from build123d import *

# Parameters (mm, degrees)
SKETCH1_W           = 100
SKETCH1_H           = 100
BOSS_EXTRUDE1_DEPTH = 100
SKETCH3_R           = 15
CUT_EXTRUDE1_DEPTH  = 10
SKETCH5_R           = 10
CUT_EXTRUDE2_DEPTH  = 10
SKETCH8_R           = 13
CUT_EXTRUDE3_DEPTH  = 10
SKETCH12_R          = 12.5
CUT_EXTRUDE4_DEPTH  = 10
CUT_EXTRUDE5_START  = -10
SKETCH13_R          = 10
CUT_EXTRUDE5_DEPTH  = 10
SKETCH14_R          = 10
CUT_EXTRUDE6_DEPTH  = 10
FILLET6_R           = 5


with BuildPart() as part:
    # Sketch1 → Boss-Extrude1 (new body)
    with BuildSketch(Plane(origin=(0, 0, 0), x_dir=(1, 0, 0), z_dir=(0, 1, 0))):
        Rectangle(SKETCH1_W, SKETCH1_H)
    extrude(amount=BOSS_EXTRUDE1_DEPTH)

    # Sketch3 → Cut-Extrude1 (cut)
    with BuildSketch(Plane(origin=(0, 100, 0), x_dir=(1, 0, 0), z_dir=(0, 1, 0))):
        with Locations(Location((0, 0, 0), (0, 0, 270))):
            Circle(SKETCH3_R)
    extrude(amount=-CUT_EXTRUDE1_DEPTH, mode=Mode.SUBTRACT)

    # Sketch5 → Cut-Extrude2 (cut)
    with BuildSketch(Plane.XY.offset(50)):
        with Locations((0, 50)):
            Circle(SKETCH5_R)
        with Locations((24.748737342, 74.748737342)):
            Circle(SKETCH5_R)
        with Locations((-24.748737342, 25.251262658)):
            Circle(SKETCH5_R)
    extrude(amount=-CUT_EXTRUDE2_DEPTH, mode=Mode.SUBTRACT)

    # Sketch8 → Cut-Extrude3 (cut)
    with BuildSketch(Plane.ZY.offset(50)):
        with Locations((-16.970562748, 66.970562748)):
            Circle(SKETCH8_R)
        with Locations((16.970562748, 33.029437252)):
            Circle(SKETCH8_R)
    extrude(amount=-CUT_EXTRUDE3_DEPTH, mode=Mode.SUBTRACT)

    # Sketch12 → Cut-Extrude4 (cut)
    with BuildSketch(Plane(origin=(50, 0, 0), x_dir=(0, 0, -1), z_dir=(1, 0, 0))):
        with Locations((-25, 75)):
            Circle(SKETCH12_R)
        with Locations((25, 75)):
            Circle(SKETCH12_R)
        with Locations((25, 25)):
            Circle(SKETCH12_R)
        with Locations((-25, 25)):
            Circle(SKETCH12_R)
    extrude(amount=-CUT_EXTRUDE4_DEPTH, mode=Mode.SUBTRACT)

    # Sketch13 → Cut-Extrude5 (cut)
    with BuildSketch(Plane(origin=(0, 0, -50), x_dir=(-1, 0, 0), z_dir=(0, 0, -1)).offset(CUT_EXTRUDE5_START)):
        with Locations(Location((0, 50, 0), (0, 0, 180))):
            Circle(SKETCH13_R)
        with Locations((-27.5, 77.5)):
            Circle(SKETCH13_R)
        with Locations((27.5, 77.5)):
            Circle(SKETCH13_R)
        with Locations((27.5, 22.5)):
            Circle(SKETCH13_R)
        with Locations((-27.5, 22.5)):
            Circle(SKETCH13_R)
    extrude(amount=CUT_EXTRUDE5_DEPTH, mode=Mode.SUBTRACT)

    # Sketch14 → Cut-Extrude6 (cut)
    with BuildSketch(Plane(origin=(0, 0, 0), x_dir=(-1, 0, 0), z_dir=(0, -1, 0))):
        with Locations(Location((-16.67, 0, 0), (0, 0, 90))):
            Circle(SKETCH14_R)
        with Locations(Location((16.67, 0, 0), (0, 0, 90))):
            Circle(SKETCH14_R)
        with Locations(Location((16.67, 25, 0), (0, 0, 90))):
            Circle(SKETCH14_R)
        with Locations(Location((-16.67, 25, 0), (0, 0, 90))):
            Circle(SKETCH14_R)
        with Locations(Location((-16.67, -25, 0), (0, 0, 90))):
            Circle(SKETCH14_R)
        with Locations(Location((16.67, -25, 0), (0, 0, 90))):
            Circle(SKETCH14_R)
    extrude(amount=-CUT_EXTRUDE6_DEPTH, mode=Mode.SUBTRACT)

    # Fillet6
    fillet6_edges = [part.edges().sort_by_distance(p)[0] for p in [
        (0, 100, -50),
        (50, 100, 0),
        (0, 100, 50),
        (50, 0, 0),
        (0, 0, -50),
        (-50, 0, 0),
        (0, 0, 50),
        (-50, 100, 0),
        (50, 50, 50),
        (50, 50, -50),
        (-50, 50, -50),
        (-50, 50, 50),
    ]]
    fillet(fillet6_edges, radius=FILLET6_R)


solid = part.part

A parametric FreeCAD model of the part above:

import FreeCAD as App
import Part
import Sketcher

V = App.Vector


def edges_at(feature, points):
    """Names of the edges that pass closest to the given points."""
    edges = feature.Shape.Edges
    near = lambda p: min(range(len(edges)), key=lambda i: edges[i].distToShape(Part.Vertex(*p))[0])
    return sorted({f"Edge{near(p) + 1}" for p in points})


def add_polygon(sketch, points):
    """Adds a closed chain of lines whose ends are joined by coincident constraints."""
    first, n = sketch.GeometryCount, len(points)
    for a, b in zip(points, points[1:] + points[:1]):
        sketch.addGeometry(Part.LineSegment(App.Vector(*a, 0), App.Vector(*b, 0)), False)
    for i in range(n):
        sketch.addConstraint(Sketcher.Constraint("Coincident", first + i, 2, first + (i + 1) % n, 1))

doc = App.newDocument("Part")
body = doc.addObject("PartDesign::Body", "Body")

sketch1 = doc.addObject("Sketcher::SketchObject", "Sketch")
body.addObject(sketch1)
sketch1.AttachmentSupport = (doc.XZ_Plane, [""])
sketch1.MapMode = "FlatFace"
add_polygon(sketch1, [(-50, -50), (-50, 50), (50, 50), (50, -50)])
sketch1.addConstraint([
    Sketcher.Constraint("Vertical", 0),
    Sketcher.Constraint("Horizontal", 1),
    Sketcher.Constraint("Vertical", 2),
    Sketcher.Constraint("Horizontal", 3),
    Sketcher.Constraint("Symmetric", 0, 2, 2, 2, -1, 1),
    Sketcher.Constraint("Equal", 3, 0),
    Sketcher.Constraint("DistanceX", 1, 1, 1, 2, 100.0),
])
pad1 = doc.addObject("PartDesign::Pad", "Pad")
body.addObject(pad1)
pad1.Profile = sketch1
pad1.Length = 100
pad1.Reversed = True

sketch2 = doc.addObject("Sketcher::SketchObject", "Sketch001")
body.addObject(sketch2)
sketch2.AttachmentSupport = (doc.XZ_Plane, [""])
sketch2.MapMode = "FlatFace"
sketch2.AttachmentOffset = App.Placement(V(0, 0, -100), App.Rotation())
sketch2.addGeometry(Part.Circle(V(0, 0, 0), V(0, 0, 1), 15), False)
sketch2.addConstraint([
    Sketcher.Constraint("Coincident", 0, 3, -1, 1),
    Sketcher.Constraint("Diameter", 0, 30.0),
])
pocket1 = doc.addObject("PartDesign::Pocket", "Pocket")
body.addObject(pocket1)
pocket1.Profile = sketch2
pocket1.Length = 10
pocket1.Reversed = True

sketch3 = doc.addObject("Sketcher::SketchObject", "Sketch002")
body.addObject(sketch3)
sketch3.AttachmentSupport = (doc.XY_Plane, [""])
sketch3.MapMode = "FlatFace"
sketch3.AttachmentOffset = App.Placement(V(0, 0, 50), App.Rotation())
sketch3.addGeometry([
    Part.Circle(V(0, 50, 0), V(0, 0, 1), 10),
    Part.Circle(V(25, 75, 0), V(0, 0, 1), 10),
    Part.Circle(V(-25, 25, 0), V(0, 0, 1), 10),
], False)
sketch3.addConstraint([
    Sketcher.Constraint("Equal", 0, 1),
    Sketcher.Constraint("Equal", 1, 2),
    Sketcher.Constraint("PointOnObject", 0, 3, -2),
    Sketcher.Constraint("Diameter", 0, 20.0),
    Sketcher.Constraint("DistanceY", -1, 1, 0, 3, 50.0),
    Sketcher.Constraint("DistanceX", -1, 1, 1, 3, 24.748737),
    Sketcher.Constraint("DistanceY", -1, 1, 1, 3, 74.748737),
    Sketcher.Constraint("DistanceX", 2, 3, -1, 1, 24.748737),
    Sketcher.Constraint("DistanceY", -1, 1, 2, 3, 25.251263),
])
pocket2 = doc.addObject("PartDesign::Pocket", "Pocket001")
body.addObject(pocket2)
pocket2.Profile = sketch3
pocket2.Length = 10

sketch4 = doc.addObject("Sketcher::SketchObject", "Sketch003")
body.addObject(sketch4)
sketch4.AttachmentSupport = (doc.YZ_Plane, [""])
sketch4.MapMode = "FlatFace"
sketch4.AttachmentOffset = App.Placement(V(0, 0, -50), App.Rotation())
sketch4.addGeometry([
    Part.Circle(V(67, -17, 0), V(0, 0, 1), 13),
    Part.Circle(V(33, 17, 0), V(0, 0, 1), 13),
], False)
sketch4.addConstraint([
    Sketcher.Constraint("Equal", 0, 1),
    Sketcher.Constraint("Diameter", 0, 26.0),
    Sketcher.Constraint("DistanceX", -1, 1, 0, 3, 66.970563),
    Sketcher.Constraint("DistanceY", 0, 3, -1, 1, 16.970563),
    Sketcher.Constraint("DistanceX", -1, 1, 1, 3, 33.029437),
    Sketcher.Constraint("DistanceY", -1, 1, 1, 3, 16.970563),
])
pocket3 = doc.addObject("PartDesign::Pocket", "Pocket002")
body.addObject(pocket3)
pocket3.Profile = sketch4
pocket3.Length = 10
pocket3.Reversed = True

sketch5 = doc.addObject("Sketcher::SketchObject", "Sketch004")
body.addObject(sketch5)
sketch5.AttachmentSupport = (doc.YZ_Plane, [""])
sketch5.MapMode = "FlatFace"
sketch5.AttachmentOffset = App.Placement(V(0, 0, 50), App.Rotation())
sketch5.addGeometry([
    Part.Circle(V(75, 25, 0), V(0, 0, 1), 12),
    Part.Circle(V(75, -25, 0), V(0, 0, 1), 12),
    Part.Circle(V(25, -25, 0), V(0, 0, 1), 12),
    Part.Circle(V(25, 25, 0), V(0, 0, 1), 12),
], False)
sketch5.addConstraint([
    Sketcher.Constraint("Equal", 0, 1),
    Sketcher.Constraint("Equal", 1, 2),
    Sketcher.Constraint("Equal", 2, 3),
    Sketcher.Constraint("Symmetric", 0, 3, 1, 3, -1),
    Sketcher.Constraint("Symmetric", 2, 3, 3, 3, -1),
    Sketcher.Constraint("Horizontal", 1, 3, 2, 3),
    Sketcher.Constraint("Diameter", 0, 25.0),
    Sketcher.Constraint("DistanceX", -1, 1, 0, 3, 75.0),
    Sketcher.Constraint("DistanceY", -1, 1, 0, 3, 25.0),
    Sketcher.Constraint("DistanceX", -1, 1, 2, 3, 25.0),
])
pocket4 = doc.addObject("PartDesign::Pocket", "Pocket003")
body.addObject(pocket4)
pocket4.Profile = sketch5
pocket4.Length = 10

sketch6 = doc.addObject("Sketcher::SketchObject", "Sketch005")
body.addObject(sketch6)
sketch6.AttachmentSupport = (doc.XY_Plane, [""])
sketch6.MapMode = "FlatFace"
sketch6.AttachmentOffset = App.Placement(V(0, 0, -40), App.Rotation())
sketch6.addGeometry([
    Part.Circle(V(0, 50, 0), V(0, 0, 1), 10),
    Part.Circle(V(28, 78, 0), V(0, 0, 1), 10),
    Part.Circle(V(-28, 78, 0), V(0, 0, 1), 10),
    Part.Circle(V(-28, 22, 0), V(0, 0, 1), 10),
    Part.Circle(V(28, 22, 0), V(0, 0, 1), 10),
], False)
sketch6.addConstraint([
    Sketcher.Constraint("Equal", 0, 1),
    Sketcher.Constraint("Equal", 1, 2),
    Sketcher.Constraint("Equal", 2, 3),
    Sketcher.Constraint("Equal", 3, 4),
    Sketcher.Constraint("Symmetric", 1, 3, 2, 3, -2),
    Sketcher.Constraint("Symmetric", 3, 3, 4, 3, -2),
    Sketcher.Constraint("PointOnObject", 0, 3, -2),
    Sketcher.Constraint("Vertical", 2, 3, 3, 3),
    Sketcher.Constraint("Diameter", 0, 20.0),
    Sketcher.Constraint("DistanceY", -1, 1, 0, 3, 50.0),
    Sketcher.Constraint("DistanceX", 2, 3, 1, 3, 55.0),
    Sketcher.Constraint("DistanceY", 3, 3, 2, 3, 55.0),
    Sketcher.Constraint("DistanceY", -1, 1, 1, 3, 77.5),
])
pocket5 = doc.addObject("PartDesign::Pocket", "Pocket004")
body.addObject(pocket5)
pocket5.Profile = sketch6
pocket5.Length = 10

sketch7 = doc.addObject("Sketcher::SketchObject", "Sketch006")
body.addObject(sketch7)
sketch7.AttachmentSupport = (doc.XZ_Plane, [""])
sketch7.MapMode = "FlatFace"
sketch7.addGeometry([
    Part.Circle(V(17, 0, 0), V(0, 0, 1), 10),
    Part.Circle(V(-17, 0, 0), V(0, 0, 1), 10),
    Part.Circle(V(-17, -25, 0), V(0, 0, 1), 10),
    Part.Circle(V(17, -25, 0), V(0, 0, 1), 10),
    Part.Circle(V(17, 25, 0), V(0, 0, 1), 10),
    Part.Circle(V(-17, 25, 0), V(0, 0, 1), 10),
], False)
sketch7.addConstraint([
    Sketcher.Constraint("Equal", 0, 1),
    Sketcher.Constraint("Equal", 1, 2),
    Sketcher.Constraint("Equal", 2, 3),
    Sketcher.Constraint("Equal", 3, 4),
    Sketcher.Constraint("Equal", 4, 5),
    Sketcher.Constraint("Symmetric", 0, 3, 1, 3, -1, 1),
    Sketcher.Constraint("Symmetric", 2, 3, 4, 3, -1, 1),
    Sketcher.Constraint("Symmetric", 3, 3, 5, 3, -1, 1),
    Sketcher.Constraint("Symmetric", 2, 3, 3, 3, -2),
    Sketcher.Constraint("PointOnObject", 0, 3, -1),
    Sketcher.Constraint("Vertical", 1, 3, 2, 3),
    Sketcher.Constraint("Diameter", 0, 20.0),
    Sketcher.Constraint("DistanceY", 2, 3, -1, 1, 25.0),
    Sketcher.Constraint("DistanceX", -1, 1, 0, 3, 16.67),
])
pocket6 = doc.addObject("PartDesign::Pocket", "Pocket005")
body.addObject(pocket6)
pocket6.Profile = sketch7
pocket6.Length = 10
doc.recompute()

fillet = doc.addObject("PartDesign::Fillet", "Fillet")
body.addObject(fillet)
fillet.Base = (pocket6, edges_at(pocket6, [
    (0, 100, -50),
    (50, 100, 0),
    (0, 100, 50),
    (50, 0, 0),
    (0, 0, -50),
    (-50, 0, 0),
    (0, 0, 50),
    (-50, 100, 0),
    (50, 50, 50),
    (50, 50, -50),
    (-50, 50, -50),
    (-50, 50, 50),
]))
fillet.Radius = 5

doc.recompute()
